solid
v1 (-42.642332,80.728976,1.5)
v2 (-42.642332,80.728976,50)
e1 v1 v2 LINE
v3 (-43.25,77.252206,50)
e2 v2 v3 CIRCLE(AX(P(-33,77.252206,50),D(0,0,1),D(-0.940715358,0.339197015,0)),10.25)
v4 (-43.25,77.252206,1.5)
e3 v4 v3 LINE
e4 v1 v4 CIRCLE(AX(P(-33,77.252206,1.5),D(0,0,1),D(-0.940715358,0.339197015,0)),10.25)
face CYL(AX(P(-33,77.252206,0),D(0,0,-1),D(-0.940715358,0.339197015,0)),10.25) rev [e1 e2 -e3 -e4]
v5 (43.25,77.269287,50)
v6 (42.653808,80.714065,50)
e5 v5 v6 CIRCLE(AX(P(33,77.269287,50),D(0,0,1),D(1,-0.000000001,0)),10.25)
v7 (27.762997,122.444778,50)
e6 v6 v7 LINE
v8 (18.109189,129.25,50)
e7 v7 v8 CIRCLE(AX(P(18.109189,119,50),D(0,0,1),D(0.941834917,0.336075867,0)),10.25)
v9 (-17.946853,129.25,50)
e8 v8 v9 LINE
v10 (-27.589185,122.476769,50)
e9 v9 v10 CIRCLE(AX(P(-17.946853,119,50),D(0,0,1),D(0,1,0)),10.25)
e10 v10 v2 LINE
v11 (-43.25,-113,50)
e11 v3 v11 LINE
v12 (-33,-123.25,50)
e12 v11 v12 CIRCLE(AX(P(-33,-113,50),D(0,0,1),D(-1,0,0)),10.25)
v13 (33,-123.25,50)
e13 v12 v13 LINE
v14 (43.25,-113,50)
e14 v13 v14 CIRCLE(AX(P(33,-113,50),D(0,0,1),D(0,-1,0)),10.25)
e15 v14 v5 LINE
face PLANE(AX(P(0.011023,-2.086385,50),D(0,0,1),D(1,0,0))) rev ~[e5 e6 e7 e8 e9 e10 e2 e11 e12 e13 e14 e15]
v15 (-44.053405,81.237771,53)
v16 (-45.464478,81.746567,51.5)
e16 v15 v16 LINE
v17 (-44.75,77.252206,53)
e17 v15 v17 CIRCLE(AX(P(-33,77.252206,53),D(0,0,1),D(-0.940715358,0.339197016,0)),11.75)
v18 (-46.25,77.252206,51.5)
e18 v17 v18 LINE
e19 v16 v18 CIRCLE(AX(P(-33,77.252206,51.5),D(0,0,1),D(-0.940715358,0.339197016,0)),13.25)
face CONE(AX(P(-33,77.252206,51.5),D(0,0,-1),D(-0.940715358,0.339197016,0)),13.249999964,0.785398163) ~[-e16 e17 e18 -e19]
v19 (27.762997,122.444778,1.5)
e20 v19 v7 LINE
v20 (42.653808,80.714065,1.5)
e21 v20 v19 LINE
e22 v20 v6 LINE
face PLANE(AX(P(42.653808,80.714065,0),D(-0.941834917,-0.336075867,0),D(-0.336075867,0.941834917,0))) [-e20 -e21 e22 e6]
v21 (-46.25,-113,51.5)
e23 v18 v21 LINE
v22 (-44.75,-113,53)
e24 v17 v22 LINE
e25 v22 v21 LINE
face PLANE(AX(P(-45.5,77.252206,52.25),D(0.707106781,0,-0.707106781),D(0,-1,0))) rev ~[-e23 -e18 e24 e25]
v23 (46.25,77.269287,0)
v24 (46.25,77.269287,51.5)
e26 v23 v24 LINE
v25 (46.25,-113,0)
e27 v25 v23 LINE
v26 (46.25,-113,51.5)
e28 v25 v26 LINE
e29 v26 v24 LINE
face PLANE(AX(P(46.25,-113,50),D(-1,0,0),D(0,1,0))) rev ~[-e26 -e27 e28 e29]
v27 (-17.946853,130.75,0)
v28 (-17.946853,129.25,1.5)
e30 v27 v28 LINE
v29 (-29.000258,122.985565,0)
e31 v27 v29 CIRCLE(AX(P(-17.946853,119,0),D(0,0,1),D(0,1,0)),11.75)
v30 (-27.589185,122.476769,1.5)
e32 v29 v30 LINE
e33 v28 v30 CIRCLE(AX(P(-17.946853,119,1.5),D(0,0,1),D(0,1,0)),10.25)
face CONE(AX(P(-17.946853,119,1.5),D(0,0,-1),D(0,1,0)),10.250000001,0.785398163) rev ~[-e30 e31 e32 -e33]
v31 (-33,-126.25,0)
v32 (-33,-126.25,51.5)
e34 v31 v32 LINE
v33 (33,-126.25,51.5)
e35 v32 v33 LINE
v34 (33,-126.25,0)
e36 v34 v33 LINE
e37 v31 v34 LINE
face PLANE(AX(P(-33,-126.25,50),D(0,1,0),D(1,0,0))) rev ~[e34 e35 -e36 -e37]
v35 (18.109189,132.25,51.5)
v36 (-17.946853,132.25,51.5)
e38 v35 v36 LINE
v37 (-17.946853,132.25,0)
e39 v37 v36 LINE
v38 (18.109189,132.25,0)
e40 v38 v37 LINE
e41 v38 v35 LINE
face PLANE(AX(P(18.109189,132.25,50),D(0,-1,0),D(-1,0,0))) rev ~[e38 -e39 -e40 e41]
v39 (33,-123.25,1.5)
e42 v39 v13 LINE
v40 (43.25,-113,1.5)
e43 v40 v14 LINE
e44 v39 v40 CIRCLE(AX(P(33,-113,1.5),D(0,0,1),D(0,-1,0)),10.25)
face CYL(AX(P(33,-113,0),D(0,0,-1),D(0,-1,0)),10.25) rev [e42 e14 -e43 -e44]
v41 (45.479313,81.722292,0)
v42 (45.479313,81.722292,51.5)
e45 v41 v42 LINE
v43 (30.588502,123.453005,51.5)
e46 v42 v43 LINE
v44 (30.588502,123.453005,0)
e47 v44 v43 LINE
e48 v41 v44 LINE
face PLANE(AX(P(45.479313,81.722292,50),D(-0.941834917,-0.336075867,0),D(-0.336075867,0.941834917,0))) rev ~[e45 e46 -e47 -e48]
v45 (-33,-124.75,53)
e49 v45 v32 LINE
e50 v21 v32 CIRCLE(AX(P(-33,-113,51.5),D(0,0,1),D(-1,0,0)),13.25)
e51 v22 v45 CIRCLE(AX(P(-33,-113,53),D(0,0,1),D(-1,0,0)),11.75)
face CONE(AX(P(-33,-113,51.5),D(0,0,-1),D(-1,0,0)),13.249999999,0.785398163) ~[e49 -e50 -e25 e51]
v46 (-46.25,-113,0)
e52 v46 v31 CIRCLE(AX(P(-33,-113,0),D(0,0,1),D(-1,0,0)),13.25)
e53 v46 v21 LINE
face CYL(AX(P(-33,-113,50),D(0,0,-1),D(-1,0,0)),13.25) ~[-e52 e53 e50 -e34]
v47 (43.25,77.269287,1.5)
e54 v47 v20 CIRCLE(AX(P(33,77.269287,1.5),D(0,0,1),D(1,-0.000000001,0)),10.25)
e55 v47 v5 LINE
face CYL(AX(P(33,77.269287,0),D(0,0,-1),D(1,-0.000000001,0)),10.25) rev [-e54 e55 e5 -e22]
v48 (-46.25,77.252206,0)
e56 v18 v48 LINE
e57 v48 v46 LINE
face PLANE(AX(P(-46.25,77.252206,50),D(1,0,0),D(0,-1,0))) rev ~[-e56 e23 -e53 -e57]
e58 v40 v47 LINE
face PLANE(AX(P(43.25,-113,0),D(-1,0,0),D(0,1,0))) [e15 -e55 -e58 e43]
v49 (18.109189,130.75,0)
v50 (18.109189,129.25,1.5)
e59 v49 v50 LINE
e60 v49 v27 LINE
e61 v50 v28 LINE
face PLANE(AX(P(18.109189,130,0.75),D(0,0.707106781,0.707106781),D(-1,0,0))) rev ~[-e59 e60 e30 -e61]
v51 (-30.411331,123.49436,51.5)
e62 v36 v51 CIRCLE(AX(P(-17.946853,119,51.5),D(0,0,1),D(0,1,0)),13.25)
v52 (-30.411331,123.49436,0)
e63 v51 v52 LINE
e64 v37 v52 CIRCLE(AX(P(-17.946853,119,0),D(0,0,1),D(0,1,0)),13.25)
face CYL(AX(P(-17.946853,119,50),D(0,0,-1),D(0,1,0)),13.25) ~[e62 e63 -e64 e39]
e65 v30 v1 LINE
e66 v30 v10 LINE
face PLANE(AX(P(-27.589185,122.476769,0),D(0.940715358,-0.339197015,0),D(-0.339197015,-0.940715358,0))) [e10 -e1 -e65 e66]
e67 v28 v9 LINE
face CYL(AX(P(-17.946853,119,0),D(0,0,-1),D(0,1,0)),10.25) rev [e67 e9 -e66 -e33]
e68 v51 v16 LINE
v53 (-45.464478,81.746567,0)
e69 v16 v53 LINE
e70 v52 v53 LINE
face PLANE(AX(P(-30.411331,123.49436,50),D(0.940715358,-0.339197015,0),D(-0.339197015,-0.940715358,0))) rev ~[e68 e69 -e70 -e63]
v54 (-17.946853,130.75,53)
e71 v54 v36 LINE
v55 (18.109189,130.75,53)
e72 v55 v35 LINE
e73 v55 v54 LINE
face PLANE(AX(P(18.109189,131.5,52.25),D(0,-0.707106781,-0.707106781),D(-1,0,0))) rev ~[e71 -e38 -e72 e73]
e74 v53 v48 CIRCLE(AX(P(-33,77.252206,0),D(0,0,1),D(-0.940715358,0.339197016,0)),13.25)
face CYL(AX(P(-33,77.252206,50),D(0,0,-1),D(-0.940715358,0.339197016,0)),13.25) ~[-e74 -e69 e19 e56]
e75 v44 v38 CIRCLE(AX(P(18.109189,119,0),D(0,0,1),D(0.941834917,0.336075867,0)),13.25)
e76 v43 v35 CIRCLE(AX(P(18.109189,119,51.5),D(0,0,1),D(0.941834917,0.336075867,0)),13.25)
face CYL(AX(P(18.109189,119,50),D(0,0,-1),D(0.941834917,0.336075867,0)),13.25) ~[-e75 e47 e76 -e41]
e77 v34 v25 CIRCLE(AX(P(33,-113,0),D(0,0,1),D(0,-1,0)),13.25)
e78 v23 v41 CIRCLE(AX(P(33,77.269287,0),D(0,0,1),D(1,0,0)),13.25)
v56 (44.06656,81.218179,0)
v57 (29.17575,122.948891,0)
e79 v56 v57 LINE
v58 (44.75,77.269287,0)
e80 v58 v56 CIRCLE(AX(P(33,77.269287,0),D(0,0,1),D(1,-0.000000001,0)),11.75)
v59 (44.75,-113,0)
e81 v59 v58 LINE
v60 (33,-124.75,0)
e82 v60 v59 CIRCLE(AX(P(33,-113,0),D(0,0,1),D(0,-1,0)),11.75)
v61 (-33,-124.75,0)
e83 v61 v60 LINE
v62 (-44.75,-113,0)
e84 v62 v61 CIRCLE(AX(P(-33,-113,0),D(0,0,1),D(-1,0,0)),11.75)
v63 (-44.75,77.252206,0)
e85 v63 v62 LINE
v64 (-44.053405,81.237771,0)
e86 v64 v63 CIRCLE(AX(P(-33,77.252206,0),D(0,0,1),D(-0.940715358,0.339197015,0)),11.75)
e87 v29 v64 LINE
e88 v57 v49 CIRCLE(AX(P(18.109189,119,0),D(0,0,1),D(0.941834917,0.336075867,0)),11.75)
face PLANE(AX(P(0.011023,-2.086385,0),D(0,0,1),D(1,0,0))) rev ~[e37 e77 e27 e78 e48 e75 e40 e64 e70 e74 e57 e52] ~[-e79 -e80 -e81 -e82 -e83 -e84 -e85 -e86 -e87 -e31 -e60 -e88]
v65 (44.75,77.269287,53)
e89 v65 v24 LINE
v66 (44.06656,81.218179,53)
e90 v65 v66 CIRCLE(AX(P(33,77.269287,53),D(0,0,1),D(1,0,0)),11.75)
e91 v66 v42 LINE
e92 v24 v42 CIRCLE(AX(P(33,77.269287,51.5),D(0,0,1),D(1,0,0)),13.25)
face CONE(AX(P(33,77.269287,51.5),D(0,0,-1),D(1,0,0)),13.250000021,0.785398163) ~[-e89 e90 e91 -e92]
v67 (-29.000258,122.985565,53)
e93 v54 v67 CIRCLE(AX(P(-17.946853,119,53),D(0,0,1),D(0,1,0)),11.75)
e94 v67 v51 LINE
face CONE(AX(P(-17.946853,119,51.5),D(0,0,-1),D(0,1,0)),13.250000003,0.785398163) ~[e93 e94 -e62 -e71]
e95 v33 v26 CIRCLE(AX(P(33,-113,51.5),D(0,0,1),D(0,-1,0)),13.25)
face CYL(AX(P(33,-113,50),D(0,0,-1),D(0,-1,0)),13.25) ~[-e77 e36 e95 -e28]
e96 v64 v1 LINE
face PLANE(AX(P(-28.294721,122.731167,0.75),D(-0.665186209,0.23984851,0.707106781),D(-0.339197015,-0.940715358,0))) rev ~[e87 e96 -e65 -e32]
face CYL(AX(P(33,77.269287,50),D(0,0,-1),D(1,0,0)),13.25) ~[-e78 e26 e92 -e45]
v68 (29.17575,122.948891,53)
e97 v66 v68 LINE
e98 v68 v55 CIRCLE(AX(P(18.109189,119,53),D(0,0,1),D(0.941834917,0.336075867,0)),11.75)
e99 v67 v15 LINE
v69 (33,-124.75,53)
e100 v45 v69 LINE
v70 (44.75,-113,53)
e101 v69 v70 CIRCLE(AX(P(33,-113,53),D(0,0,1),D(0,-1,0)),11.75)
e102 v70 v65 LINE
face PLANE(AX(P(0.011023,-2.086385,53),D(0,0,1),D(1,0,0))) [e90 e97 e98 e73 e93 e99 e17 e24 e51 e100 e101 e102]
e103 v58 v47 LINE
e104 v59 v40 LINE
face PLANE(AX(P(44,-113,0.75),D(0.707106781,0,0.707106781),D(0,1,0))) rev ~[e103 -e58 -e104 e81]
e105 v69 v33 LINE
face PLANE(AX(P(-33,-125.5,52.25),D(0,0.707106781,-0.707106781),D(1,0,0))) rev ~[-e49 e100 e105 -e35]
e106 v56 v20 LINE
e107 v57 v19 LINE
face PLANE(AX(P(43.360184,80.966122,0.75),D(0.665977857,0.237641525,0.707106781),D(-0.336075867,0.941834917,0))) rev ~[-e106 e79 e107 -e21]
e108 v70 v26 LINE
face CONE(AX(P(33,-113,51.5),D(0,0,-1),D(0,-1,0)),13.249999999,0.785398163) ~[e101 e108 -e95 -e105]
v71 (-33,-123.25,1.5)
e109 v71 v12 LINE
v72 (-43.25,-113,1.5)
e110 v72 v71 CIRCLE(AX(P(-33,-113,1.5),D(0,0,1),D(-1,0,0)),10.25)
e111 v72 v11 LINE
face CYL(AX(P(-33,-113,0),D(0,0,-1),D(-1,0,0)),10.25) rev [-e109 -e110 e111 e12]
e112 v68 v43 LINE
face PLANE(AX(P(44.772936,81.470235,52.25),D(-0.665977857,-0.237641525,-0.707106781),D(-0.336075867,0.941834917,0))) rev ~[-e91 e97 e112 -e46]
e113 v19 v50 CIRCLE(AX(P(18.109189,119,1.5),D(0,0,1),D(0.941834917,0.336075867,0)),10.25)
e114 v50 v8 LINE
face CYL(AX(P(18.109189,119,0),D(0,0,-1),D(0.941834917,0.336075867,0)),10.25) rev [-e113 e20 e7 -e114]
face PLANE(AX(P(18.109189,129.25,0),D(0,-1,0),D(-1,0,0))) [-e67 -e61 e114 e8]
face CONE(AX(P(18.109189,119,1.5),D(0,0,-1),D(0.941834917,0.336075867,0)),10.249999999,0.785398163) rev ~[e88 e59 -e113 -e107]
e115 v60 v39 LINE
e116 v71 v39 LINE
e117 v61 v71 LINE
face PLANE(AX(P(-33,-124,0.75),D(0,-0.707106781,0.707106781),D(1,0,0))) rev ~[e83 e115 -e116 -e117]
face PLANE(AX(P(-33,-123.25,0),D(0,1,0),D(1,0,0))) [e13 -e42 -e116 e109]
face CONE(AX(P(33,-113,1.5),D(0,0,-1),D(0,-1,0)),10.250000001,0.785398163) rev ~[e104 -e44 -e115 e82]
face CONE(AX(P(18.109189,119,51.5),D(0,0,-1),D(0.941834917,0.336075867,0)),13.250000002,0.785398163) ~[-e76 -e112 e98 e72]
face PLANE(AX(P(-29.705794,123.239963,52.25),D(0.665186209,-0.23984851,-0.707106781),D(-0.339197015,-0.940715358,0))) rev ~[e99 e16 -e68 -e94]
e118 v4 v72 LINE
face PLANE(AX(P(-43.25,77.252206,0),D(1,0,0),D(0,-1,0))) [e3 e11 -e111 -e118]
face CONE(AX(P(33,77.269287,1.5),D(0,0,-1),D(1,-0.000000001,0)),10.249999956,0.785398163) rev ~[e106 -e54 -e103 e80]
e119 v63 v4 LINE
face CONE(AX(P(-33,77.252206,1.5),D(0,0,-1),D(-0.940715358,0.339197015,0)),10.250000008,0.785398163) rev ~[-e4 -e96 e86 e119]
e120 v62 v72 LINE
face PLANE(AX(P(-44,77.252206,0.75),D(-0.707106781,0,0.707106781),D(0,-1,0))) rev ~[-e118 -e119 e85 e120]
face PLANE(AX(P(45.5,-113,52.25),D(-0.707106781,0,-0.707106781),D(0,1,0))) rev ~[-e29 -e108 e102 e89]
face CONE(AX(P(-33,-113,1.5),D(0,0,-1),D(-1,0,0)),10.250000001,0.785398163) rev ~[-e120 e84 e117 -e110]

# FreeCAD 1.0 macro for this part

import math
import FreeCAD as App
import Part
import Sketcher

V = App.Vector
Q = App.Units.Quantity


def edges_at(feature, points):
    """Names of the edges that pass closest to the given points."""
    edges = feature.Shape.Edges
    near = lambda p: min(range(len(edges)), key=lambda i: edges[i].distToShape(Part.Vertex(*p))[0])
    return sorted({f"Edge{near(p) + 1}" for p in points})

doc = App.newDocument("Part")
body = doc.addObject("PartDesign::Body", "Body")

sketch1 = doc.addObject("Sketcher::SketchObject", "Sketch")
body.addObject(sketch1)
sketch1.AttachmentSupport = (doc.XY_Plane, [""])
sketch1.MapMode = "FlatFace"
sketch1.addGeometry([
    Part.LineSegment(V(-46.2, 77.3, 0), V(-46.2, -113, 0)),
    Part.ArcOfCircle(Part.Circle(V(-33, -113, 0), V(0, 0, 1), 13.2), math.radians(180), math.radians(270)),
    Part.LineSegment(V(-33, -126.2, 0), V(33, -126.2, 0)),
    Part.ArcOfCircle(Part.Circle(V(33, -113, 0), V(0, 0, 1), 13.2), math.radians(-90), math.radians(0)),
    Part.LineSegment(V(46.2, -113, 0), V(46.2, 77.3, 0)),
    Part.ArcOfCircle(Part.Circle(V(33, 77.3, 0), V(0, 0, 1), 13.3), math.radians(0), math.radians(19.64)),
    Part.LineSegment(V(45.5, 81.7, 0), V(30.6, 123.5, 0)),
    Part.ArcOfCircle(Part.Circle(V(18.1, 119, 0), V(0, 0, 1), 13.3), math.radians(20), math.radians(90)),
    Part.LineSegment(V(18.1, 132.2, 0), V(-17.9, 132.2, 0)),
    Part.ArcOfCircle(Part.Circle(V(-17.9, 119, 0), V(0, 0, 1), 13.3), math.radians(90), math.radians(160)),
    Part.LineSegment(V(-30.4, 123.5, 0), V(-45.5, 81.7, 0)),
    Part.ArcOfCircle(Part.Circle(V(-33, 77.3, 0), V(0, 0, 1), 13.2), math.radians(160.17), math.radians(180)),
    Part.ArcOfCircle(Part.Circle(V(-33, -113, 0), V(0, 0, 1), 10.3), math.radians(-180), math.radians(-90)),
    Part.LineSegment(V(-43.2, -113, 0), V(-43.2, 77.3, 0)),
    Part.ArcOfCircle(Part.Circle(V(-33, 77.3, 0), V(0, 0, 1), 10.3), math.radians(160.17), math.radians(180)),
    Part.LineSegment(V(-42.6, 80.7, 0), V(-27.6, 122.5, 0)),
    Part.ArcOfCircle(Part.Circle(V(-17.9, 119, 0), V(0, 0, 1), 10.3), math.radians(90), math.radians(160)),
    Part.LineSegment(V(-17.9, 129.2, 0), V(18.1, 129.2, 0)),
    Part.ArcOfCircle(Part.Circle(V(18.1, 119, 0), V(0, 0, 1), 10.2), math.radians(20), math.radians(90)),
    Part.LineSegment(V(27.8, 122.4, 0), V(42.7, 80.7, 0)),
    Part.ArcOfCircle(Part.Circle(V(33, 77.3, 0), V(0, 0, 1), 10.2), math.radians(0), math.radians(19.64)),
    Part.LineSegment(V(43.2, 77.3, 0), V(43.2, -113, 0)),
    Part.ArcOfCircle(Part.Circle(V(33, -113, 0), V(0, 0, 1), 10.3), math.radians(-90), math.radians(0)),
    Part.LineSegment(V(33, -123.2, 0), V(-33, -123.2, 0)),
], False)
sketch1.addConstraint([
    Sketcher.Constraint("Tangent", 0, 2, 1, 1),
    Sketcher.Constraint("Tangent", 1, 2, 2, 1),
    Sketcher.Constraint("Tangent", 2, 2, 3, 1),
    Sketcher.Constraint("Tangent", 3, 2, 4, 1),
    Sketcher.Constraint("Tangent", 4, 2, 5, 1),
    Sketcher.Constraint("Tangent", 5, 2, 6, 1),
    Sketcher.Constraint("Tangent", 6, 2, 7, 1),
    Sketcher.Constraint("Tangent", 7, 2, 8, 1),
    Sketcher.Constraint("Tangent", 8, 2, 9, 1),
    Sketcher.Constraint("Tangent", 9, 2, 10, 1),
    Sketcher.Constraint("Tangent", 10, 2, 11, 1),
    Sketcher.Constraint("Tangent", 11, 2, 0, 1),
    Sketcher.Constraint("Tangent", 12, 1, 13, 1),
    Sketcher.Constraint("Tangent", 13, 2, 14, 2),
    Sketcher.Constraint("Tangent", 14, 1, 15, 1),
    Sketcher.Constraint("Tangent", 15, 2, 16, 2),
    Sketcher.Constraint("Tangent", 16, 1, 17, 1),
    Sketcher.Constraint("Tangent", 17, 2, 18, 2),
    Sketcher.Constraint("Tangent", 18, 1, 19, 1),
    Sketcher.Constraint("Tangent", 19, 2, 20, 2),
    Sketcher.Constraint("Tangent", 20, 1, 21, 1),
    Sketcher.Constraint("Tangent", 21, 2, 22, 2),
    Sketcher.Constraint("Tangent", 22, 1, 23, 1),
    Sketcher.Constraint("Tangent", 23, 2, 12, 2),
    Sketcher.Constraint("Vertical", 0),
    Sketcher.Constraint("Horizontal", 2),
    Sketcher.Constraint("Vertical", 4),
    Sketcher.Constraint("Horizontal", 8),
    Sketcher.Constraint("Vertical", 13),
    Sketcher.Constraint("Horizontal", 17),
    Sketcher.Constraint("Vertical", 21),
    Sketcher.Constraint("Horizontal", 23),
    Sketcher.Constraint("Coincident", 12, 3, 1, 3),
    Sketcher.Constraint("Coincident", 14, 3, 11, 3),
    Sketcher.Constraint("Coincident", 16, 3, 9, 3),
    Sketcher.Constraint("Coincident", 18, 3, 7, 3),
    Sketcher.Constraint("Coincident", 20, 3, 5, 3),
    Sketcher.Constraint("Coincident", 22, 3, 3, 3),
    Sketcher.Constraint("Equal", 1, 3),
    Sketcher.Constraint("Equal", 3, 5),
    Sketcher.Constraint("Equal", 5, 7),
    Sketcher.Constraint("Equal", 7, 9),
    Sketcher.Constraint("Equal", 9, 11),
    Sketcher.Constraint("Equal", 14, 16),
    Sketcher.Constraint("DistanceX", 2, 1, 2, 2, Q("66 mm")),
    Sketcher.Constraint("Radius", 1, Q("13.25 mm")),
    Sketcher.Constraint("Radius", 12, Q("10.25 mm")),
    Sketcher.Constraint("DistanceX", 1, 3, -1, 1, Q("33 mm")),
    Sketcher.Constraint("DistanceY", 1, 3, -1, 1, Q("113 mm")),
    Sketcher.Constraint("DistanceY", -1, 1, 7, 3, Q("119 mm")),
    Sketcher.Constraint("DistanceX", 8, 2, 8, 1, Q("36.056042 mm")),
    Sketcher.Constraint("DistanceX", -1, 1, 6, 2, Q("30.588502 mm")),
    Sketcher.Constraint("DistanceY", 0, 2, 0, 1, Q("190.252206 mm")),
    Sketcher.Constraint("DistanceY", 4, 1, 4, 2, Q("190.269287 mm")),
])
pad1 = doc.addObject("PartDesign::Pad", "Pad")
body.addObject(pad1)
pad1.Profile = sketch1
pad1.Length = 50

sketch2 = doc.addObject("Sketcher::SketchObject", "Sketch001")
body.addObject(sketch2)
sketch2.AttachmentSupport = (doc.XY_Plane, [""])
sketch2.MapMode = "FlatFace"
sketch2.AttachmentOffset = App.Placement(V(0, 0, 50), App.Rotation())
sketch2.addGeometry([
    Part.LineSegment(V(-46.2, 77.3, 0), V(-46.2, -113, 0)),
    Part.ArcOfCircle(Part.Circle(V(-33, -113, 0), V(0, 0, 1), 13.2), math.radians(180), math.radians(270)),
    Part.LineSegment(V(-33, -126.2, 0), V(33, -126.2, 0)),
    Part.ArcOfCircle(Part.Circle(V(33, -113, 0), V(0, 0, 1), 13.2), math.radians(-90), math.radians(0)),
    Part.LineSegment(V(46.2, -113, 0), V(46.2, 77.3, 0)),
    Part.ArcOfCircle(Part.Circle(V(33, 77.3, 0), V(0, 0, 1), 13.3), math.radians(0), math.radians(19.64)),
    Part.LineSegment(V(45.5, 81.7, 0), V(30.6, 123.5, 0)),
    Part.ArcOfCircle(Part.Circle(V(18.1, 119, 0), V(0, 0, 1), 13.3), math.radians(20), math.radians(90)),
    Part.LineSegment(V(18.1, 132.2, 0), V(-17.9, 132.2, 0)),
    Part.ArcOfCircle(Part.Circle(V(-17.9, 119, 0), V(0, 0, 1), 13.3), math.radians(90), math.radians(160)),
    Part.LineSegment(V(-30.4, 123.5, 0), V(-45.5, 81.7, 0)),
    Part.ArcOfCircle(Part.Circle(V(-33, 77.3, 0), V(0, 0, 1), 13.2), math.radians(160.17), math.radians(180)),
], False)
sketch2.addConstraint([
    Sketcher.Constraint("Tangent", 0, 2, 1, 1),
    Sketcher.Constraint("Tangent", 1, 2, 2, 1),
    Sketcher.Constraint("Tangent", 2, 2, 3, 1),
    Sketcher.Constraint("Tangent", 3, 2, 4, 1),
    Sketcher.Constraint("Tangent", 4, 2, 5, 1),
    Sketcher.Constraint("Tangent", 5, 2, 6, 1),
    Sketcher.Constraint("Tangent", 6, 2, 7, 1),
    Sketcher.Constraint("Tangent", 7, 2, 8, 1),
    Sketcher.Constraint("Tangent", 8, 2, 9, 1),
    Sketcher.Constraint("Tangent", 9, 2, 10, 1),
    Sketcher.Constraint("Tangent", 10, 2, 11, 1),
    Sketcher.Constraint("Tangent", 11, 2, 0, 1),
    Sketcher.Constraint("Vertical", 0),
    Sketcher.Constraint("Horizontal", 2),
    Sketcher.Constraint("Vertical", 4),
    Sketcher.Constraint("Horizontal", 8),
    Sketcher.Constraint("Equal", 1, 3),
    Sketcher.Constraint("Equal", 3, 5),
    Sketcher.Constraint("Equal", 5, 7),
    Sketcher.Constraint("Equal", 7, 9),
    Sketcher.Constraint("Equal", 9, 11),
    Sketcher.Constraint("DistanceX", 2, 1, 2, 2, Q("66 mm")),
    Sketcher.Constraint("Radius", 1, Q("13.25 mm")),
    Sketcher.Constraint("DistanceX", 1, 3, -1, 1, Q("33 mm")),
    Sketcher.Constraint("DistanceY", 1, 3, -1, 1, Q("113 mm")),
    Sketcher.Constraint("DistanceY", -1, 1, 7, 3, Q("119 mm")),
    Sketcher.Constraint("DistanceX", 8, 2, 8, 1, Q("36.056042 mm")),
    Sketcher.Constraint("DistanceX", -1, 1, 6, 2, Q("30.588502 mm")),
    Sketcher.Constraint("DistanceY", 0, 2, 0, 1, Q("190.252206 mm")),
    Sketcher.Constraint("DistanceY", 4, 1, 4, 2, Q("190.269287 mm")),
])
pad2 = doc.addObject("PartDesign::Pad", "Pad001")
body.addObject(pad2)
pad2.Profile = sketch2
pad2.Length = 3
doc.recompute()

chamfer = doc.addObject("PartDesign::Chamfer", "Chamfer")
body.addObject(chamfer)
chamfer.Base = (pad2, edges_at(pad2, [
    (0, -123.25, 0),
    (40.248, -120.248, 0),
    (43.25, -17.865, 0),
    (43.1, 79.017, 0),
    (35.208, 101.579, 0),
    (24.015, 127.378, 0),
    (0.081, 129.25, 0),
    (-23.839, 127.387, 0),
    (-35.116, 101.603, 0),
    (-43.097, 79.017, 0),
    (-43.25, -17.874, 0),
    (-40.248, -120.248, 0),
    (-46.052, 79.533, 53),
    (-46.25, -17.874, 53),
    (-42.369, -122.369, 53),
    (0, -126.25, 53),
    (42.369, -122.369, 53),
    (46.25, -17.865, 53),
    (46.056, 79.529, 53),
    (38.034, 102.588, 53),
    (25.743, 129.83, 53),
    (0.081, 132.25, 53),
    (-25.563, 129.842, 53),
    (-37.938, 102.62, 53),
]))
chamfer.Size = 1.5

doc.recompute()
